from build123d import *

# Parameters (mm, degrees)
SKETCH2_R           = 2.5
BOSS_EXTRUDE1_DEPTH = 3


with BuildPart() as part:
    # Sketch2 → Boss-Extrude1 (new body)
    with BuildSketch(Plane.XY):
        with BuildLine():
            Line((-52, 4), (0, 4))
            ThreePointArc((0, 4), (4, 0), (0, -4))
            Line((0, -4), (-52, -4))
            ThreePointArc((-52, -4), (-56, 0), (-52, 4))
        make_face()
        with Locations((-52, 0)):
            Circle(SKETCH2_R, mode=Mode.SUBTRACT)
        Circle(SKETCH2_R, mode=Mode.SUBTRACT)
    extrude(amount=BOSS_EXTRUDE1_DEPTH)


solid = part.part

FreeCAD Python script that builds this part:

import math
import FreeCAD as App
import Part
import Sketcher

V = App.Vector

doc = App.newDocument("Part")
body = doc.addObject("PartDesign::Body", "Body")

# Sketch on XY plane
sketch1 = doc.addObject("Sketcher::SketchObject", "Sketch")
body.addObject(sketch1)
sketch1.AttachmentSupport = (doc.XY_Plane, [""])
sketch1.MapMode = "FlatFace"
sketch1.addGeometry([
    Part.LineSegment(V(0, 4, 0), V(-52, 4, 0)),  # 0
    Part.ArcOfCircle(Part.Circle(V(-52, 0, 0), V(0, 0, 1), 4), math.radians(90), math.radians(270)),  # 1
    Part.LineSegment(V(-52, -4, 0), V(0, -4, 0)),  # 2
    Part.ArcOfCircle(Part.Circle(V(0, 0, 0), V(0, 0, 1), 4), math.radians(-90), math.radians(90)),  # 3
    Part.Circle(V(0, 0, 0), V(0, 0, 1), 2.5),  # 4
    Part.Circle(V(-52, 0, 0), V(0, 0, 1), 2.5),  # 5
], False)
sketch1.addConstraint([
    Sketcher.Constraint("Tangent", 0, 2, 1, 1),
    Sketcher.Constraint("Tangent", 1, 2, 2, 1),
    Sketcher.Constraint("Tangent", 2, 2, 3, 1),
    Sketcher.Constraint("Tangent", 3, 2, 0, 1),
    Sketcher.Constraint("Horizontal", 0),
    Sketcher.Constraint("Horizontal", 2),
    Sketcher.Constraint("Coincident", 3, 3, -1, 1),
    Sketcher.Constraint("Coincident", 4, 3, -1, 1),
    Sketcher.Constraint("Coincident", 5, 3, 1, 3),
    Sketcher.Constraint("Equal", 4, 5),
    Sketcher.Constraint("Diameter", 4, 5.0),
    Sketcher.Constraint("Radius", 1, 4.0),
    Sketcher.Constraint("DistanceX", 0, 2, 0, 1, 52.0),
])
pad1 = doc.addObject("PartDesign::Pad", "Pad")
body.addObject(pad1)
pad1.Profile = sketch1
pad1.Length = 3

doc.recompute()
